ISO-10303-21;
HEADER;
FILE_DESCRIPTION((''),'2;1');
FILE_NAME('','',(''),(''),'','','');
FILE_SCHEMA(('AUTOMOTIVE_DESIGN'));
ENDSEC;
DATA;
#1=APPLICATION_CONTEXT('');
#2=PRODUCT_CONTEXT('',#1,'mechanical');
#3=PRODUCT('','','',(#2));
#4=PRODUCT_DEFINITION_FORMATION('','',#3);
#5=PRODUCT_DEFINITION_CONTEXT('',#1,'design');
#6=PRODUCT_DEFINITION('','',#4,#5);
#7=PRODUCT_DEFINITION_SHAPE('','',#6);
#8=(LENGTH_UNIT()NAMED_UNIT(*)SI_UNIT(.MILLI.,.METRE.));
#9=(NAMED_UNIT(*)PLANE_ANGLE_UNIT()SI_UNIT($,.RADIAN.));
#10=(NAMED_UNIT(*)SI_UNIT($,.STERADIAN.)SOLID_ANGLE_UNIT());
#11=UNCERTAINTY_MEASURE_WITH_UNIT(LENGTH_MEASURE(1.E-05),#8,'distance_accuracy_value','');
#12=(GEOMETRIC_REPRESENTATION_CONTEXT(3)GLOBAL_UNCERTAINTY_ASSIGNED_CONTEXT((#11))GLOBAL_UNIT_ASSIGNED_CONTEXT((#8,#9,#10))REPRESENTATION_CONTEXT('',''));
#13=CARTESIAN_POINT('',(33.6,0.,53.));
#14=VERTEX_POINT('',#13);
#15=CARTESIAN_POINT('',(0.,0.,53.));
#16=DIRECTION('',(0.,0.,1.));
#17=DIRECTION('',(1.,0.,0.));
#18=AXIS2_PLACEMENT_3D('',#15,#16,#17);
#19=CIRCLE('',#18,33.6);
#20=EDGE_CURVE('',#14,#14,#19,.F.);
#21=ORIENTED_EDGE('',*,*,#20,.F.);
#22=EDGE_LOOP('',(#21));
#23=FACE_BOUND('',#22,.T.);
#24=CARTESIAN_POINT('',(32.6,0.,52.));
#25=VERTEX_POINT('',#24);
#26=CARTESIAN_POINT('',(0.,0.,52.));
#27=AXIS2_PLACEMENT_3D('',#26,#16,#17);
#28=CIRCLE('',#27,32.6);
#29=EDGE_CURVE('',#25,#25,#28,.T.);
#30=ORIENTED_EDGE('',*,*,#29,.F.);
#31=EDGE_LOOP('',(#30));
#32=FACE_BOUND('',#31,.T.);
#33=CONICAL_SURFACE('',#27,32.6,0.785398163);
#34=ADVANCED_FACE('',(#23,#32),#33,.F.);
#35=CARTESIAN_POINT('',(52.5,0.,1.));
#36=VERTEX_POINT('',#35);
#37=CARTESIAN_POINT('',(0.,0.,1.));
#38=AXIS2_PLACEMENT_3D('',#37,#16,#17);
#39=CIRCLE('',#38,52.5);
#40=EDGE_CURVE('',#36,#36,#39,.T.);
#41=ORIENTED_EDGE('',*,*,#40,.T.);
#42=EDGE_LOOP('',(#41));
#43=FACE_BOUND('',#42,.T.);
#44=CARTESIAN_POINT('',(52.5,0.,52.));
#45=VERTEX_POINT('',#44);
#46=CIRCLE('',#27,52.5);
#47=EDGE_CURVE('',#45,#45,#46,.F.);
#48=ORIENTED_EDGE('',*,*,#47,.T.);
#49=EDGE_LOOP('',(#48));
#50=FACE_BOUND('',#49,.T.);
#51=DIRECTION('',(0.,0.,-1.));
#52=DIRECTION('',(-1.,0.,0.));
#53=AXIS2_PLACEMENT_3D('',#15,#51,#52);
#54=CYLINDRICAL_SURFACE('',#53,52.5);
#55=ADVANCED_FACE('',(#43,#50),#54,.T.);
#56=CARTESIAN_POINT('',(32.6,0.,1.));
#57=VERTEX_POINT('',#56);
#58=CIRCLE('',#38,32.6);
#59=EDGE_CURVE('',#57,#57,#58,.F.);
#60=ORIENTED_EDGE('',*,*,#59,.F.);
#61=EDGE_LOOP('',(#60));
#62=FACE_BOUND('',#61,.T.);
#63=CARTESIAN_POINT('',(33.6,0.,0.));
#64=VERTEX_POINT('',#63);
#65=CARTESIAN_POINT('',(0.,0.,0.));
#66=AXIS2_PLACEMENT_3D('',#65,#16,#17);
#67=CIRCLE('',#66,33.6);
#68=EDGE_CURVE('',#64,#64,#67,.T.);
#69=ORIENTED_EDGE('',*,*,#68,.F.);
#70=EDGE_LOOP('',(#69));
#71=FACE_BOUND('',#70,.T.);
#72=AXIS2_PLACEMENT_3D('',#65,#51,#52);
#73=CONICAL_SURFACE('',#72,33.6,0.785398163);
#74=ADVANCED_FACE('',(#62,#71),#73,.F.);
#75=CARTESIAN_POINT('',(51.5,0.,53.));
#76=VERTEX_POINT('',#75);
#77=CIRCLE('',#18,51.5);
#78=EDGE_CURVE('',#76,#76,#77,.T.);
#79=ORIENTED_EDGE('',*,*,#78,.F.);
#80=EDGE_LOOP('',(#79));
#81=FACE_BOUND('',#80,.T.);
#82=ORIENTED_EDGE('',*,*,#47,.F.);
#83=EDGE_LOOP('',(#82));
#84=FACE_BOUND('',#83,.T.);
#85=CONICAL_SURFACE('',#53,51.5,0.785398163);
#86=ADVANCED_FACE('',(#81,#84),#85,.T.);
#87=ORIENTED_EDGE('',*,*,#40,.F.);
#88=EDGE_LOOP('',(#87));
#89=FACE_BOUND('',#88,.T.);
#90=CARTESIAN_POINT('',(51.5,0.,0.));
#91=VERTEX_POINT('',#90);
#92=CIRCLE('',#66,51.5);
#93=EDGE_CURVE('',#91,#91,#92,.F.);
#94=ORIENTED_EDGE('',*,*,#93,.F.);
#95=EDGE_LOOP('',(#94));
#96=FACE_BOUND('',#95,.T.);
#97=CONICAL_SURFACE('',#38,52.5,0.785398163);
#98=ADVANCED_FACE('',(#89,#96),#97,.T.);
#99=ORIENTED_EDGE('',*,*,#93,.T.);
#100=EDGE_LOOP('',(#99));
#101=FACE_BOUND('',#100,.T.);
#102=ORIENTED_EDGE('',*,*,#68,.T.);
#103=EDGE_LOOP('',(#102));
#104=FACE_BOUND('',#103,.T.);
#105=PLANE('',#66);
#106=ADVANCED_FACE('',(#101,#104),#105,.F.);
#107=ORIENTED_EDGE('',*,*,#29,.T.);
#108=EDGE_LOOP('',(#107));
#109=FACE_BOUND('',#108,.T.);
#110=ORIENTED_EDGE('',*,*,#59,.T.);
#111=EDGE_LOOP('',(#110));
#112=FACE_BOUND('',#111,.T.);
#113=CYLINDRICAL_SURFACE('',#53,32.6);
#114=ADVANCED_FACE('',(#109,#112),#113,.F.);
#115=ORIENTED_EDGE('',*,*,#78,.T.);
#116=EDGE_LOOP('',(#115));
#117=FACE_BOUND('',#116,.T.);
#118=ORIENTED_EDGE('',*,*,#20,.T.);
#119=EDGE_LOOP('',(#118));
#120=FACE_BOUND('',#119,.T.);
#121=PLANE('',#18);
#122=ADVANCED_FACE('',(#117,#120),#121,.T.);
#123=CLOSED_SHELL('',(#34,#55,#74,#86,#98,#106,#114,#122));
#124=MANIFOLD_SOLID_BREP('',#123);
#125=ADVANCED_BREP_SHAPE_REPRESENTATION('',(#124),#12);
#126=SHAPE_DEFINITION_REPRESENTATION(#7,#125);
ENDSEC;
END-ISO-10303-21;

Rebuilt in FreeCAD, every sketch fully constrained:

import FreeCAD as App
import Part
import Sketcher
from FreeCAD import Vector


def edges_at(feature, points):
    """Names of the edges that pass closest to the given points."""
    edges = feature.Shape.Edges
    near = lambda p: min(range(len(edges)), key=lambda i: edges[i].distToShape(Part.Vertex(*p))[0])
    return sorted({f"Edge{near(p) + 1}" for p in points})

doc = App.newDocument("Part")
body = doc.addObject("PartDesign::Body", "Body")

# Sketch on XY plane
sketch1 = body.newObject("Sketcher::SketchObject", "Sketch")
sketch1.AttachmentSupport = (doc.getObject("XY_Plane"), [""])
sketch1.MapMode = "FlatFace"
sketch1.addGeometry([
    Part.Circle(Vector(0, 0, 0), Vector(0, 0, 1), 52.5),
    Part.Circle(Vector(0, 0, 0), Vector(0, 0, 1), 32.6),
], False)
sketch1.addConstraint([
    Sketcher.Constraint("Coincident", 0, 3, -1, 1),
    Sketcher.Constraint("Coincident", 1, 3, -1, 1),
    Sketcher.Constraint("Diameter", 0, 105.0),
    Sketcher.Constraint("Diameter", 1, 65.2),
])
pad1 = body.newObject("PartDesign::Pad", "Pad")
pad1.Profile = sketch1
pad1.Length = 53
doc.recompute()

chamfer = body.newObject("PartDesign::Chamfer", "Chamfer")
chamfer.Base = (pad1, edges_at(pad1, [
    (-52.5, 0, 0),
    (-52.5, 0, 53),
    (-32.6, 0, 0),
    (-32.6, 0, 53),
]))
chamfer.Size = 1

doc.recompute()
